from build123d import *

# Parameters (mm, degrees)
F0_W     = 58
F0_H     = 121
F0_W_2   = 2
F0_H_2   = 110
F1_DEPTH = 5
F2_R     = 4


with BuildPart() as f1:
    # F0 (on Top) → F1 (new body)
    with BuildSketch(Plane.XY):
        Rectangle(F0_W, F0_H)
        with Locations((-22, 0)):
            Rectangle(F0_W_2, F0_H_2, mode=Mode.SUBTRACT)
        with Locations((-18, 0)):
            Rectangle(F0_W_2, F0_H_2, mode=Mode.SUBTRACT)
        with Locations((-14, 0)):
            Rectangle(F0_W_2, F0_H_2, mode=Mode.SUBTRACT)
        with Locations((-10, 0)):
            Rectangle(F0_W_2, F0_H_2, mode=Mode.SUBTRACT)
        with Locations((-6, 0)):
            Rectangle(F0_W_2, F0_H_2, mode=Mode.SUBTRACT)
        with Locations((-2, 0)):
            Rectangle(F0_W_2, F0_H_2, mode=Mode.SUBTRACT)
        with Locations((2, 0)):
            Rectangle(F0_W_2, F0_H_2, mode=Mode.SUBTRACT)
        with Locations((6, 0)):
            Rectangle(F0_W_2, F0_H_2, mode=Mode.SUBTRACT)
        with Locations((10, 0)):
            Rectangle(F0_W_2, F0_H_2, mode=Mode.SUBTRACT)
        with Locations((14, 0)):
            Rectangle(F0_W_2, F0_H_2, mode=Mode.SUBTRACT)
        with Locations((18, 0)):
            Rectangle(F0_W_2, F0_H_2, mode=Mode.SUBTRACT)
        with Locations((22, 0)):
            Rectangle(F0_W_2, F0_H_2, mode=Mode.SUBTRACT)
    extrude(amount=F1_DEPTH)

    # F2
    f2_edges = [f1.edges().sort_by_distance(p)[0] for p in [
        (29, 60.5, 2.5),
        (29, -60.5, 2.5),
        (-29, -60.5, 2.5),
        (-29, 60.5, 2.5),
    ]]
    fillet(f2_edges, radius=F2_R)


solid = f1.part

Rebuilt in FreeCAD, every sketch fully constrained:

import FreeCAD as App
import Part
import Sketcher

V = App.Vector


def edges_at(feature, points):
    """Names of the edges that pass closest to the given points."""
    edges = feature.Shape.Edges
    near = lambda p: min(range(len(edges)), key=lambda i: edges[i].distToShape(Part.Vertex(*p))[0])
    return sorted({f"Edge{near(p) + 1}" for p in points})

doc = App.newDocument("Part")
params = doc.addObject("Spreadsheet::Sheet", "Params")
for row, (alias, value) in enumerate([
    ("sketch1_width", "58 mm"),
    ("sketch1_width2", "2 mm"),
    ("sketch1_height", "121 mm"),
    ("sketch1_height2", "110 mm"),
    ("pad1_length", "5 mm"),
    ("fillet_radius", "4 mm"),
], start=1):
    params.set(f"A{row}", alias)
    params.set(f"B{row}", "=" + value)
    params.setAlias(f"B{row}", alias)

body = doc.addObject("PartDesign::Body", "Body")

sketch1 = body.newObject("Sketcher::SketchObject", "Sketch")
sketch1.AttachmentSupport = (doc.getObject("XY_Plane"), [""])
sketch1.MapMode = "FlatFace"
sketch1.addGeometry([
    Part.LineSegment(V(-29, 60.5, 0), V(-29, -60.5, 0)),
    Part.LineSegment(V(-29, -60.5, 0), V(29, -60.5, 0)),
    Part.LineSegment(V(29, -60.5, 0), V(29, 60.5, 0)),
    Part.LineSegment(V(29, 60.5, 0), V(-29, 60.5, 0)),
    Part.LineSegment(V(-21, -55, 0), V(-23, -55, 0)),
    Part.LineSegment(V(-23, -55, 0), V(-23, 55, 0)),
    Part.LineSegment(V(-23, 55, 0), V(-21, 55, 0)),
    Part.LineSegment(V(-21, 55, 0), V(-21, -55, 0)),
    Part.LineSegment(V(-17, -55, 0), V(-19, -55, 0)),
    Part.LineSegment(V(-19, -55, 0), V(-19, 55, 0)),
    Part.LineSegment(V(-19, 55, 0), V(-17, 55, 0)),
    Part.LineSegment(V(-17, 55, 0), V(-17, -55, 0)),
    Part.LineSegment(V(-13, -55, 0), V(-15, -55, 0)),
    Part.LineSegment(V(-15, -55, 0), V(-15, 55, 0)),
    Part.LineSegment(V(-15, 55, 0), V(-13, 55, 0)),
    Part.LineSegment(V(-13, 55, 0), V(-13, -55, 0)),
    Part.LineSegment(V(-9, -55, 0), V(-11, -55, 0)),
    Part.LineSegment(V(-11, -55, 0), V(-11, 55, 0)),
    Part.LineSegment(V(-11, 55, 0), V(-9, 55, 0)),
    Part.LineSegment(V(-9, 55, 0), V(-9, -55, 0)),
    Part.LineSegment(V(-5, -55, 0), V(-7, -55, 0)),
    Part.LineSegment(V(-7, -55, 0), V(-7, 55, 0)),
    Part.LineSegment(V(-7, 55, 0), V(-5, 55, 0)),
    Part.LineSegment(V(-5, 55, 0), V(-5, -55, 0)),
    Part.LineSegment(V(-1, -55, 0), V(-3, -55, 0)),
    Part.LineSegment(V(-3, -55, 0), V(-3, 55, 0)),
    Part.LineSegment(V(-3, 55, 0), V(-1, 55, 0)),
    Part.LineSegment(V(-1, 55, 0), V(-1, -55, 0)),
    Part.LineSegment(V(3, -55, 0), V(1, -55, 0)),
    Part.LineSegment(V(1, -55, 0), V(1, 55, 0)),
    Part.LineSegment(V(1, 55, 0), V(3, 55, 0)),
    Part.LineSegment(V(3, 55, 0), V(3, -55, 0)),
    Part.LineSegment(V(7, -55, 0), V(5, -55, 0)),
    Part.LineSegment(V(5, -55, 0), V(5, 55, 0)),
    Part.LineSegment(V(5, 55, 0), V(7, 55, 0)),
    Part.LineSegment(V(7, 55, 0), V(7, -55, 0)),
    Part.LineSegment(V(11, -55, 0), V(9, -55, 0)),
    Part.LineSegment(V(9, -55, 0), V(9, 55, 0)),
    Part.LineSegment(V(9, 55, 0), V(11, 55, 0)),
    Part.LineSegment(V(11, 55, 0), V(11, -55, 0)),
    Part.LineSegment(V(15, -55, 0), V(13, -55, 0)),
    Part.LineSegment(V(13, -55, 0), V(13, 55, 0)),
    Part.LineSegment(V(13, 55, 0), V(15, 55, 0)),
    Part.LineSegment(V(15, 55, 0), V(15, -55, 0)),
    Part.LineSegment(V(19, -55, 0), V(17, -55, 0)),
    Part.LineSegment(V(17, -55, 0), V(17, 55, 0)),
    Part.LineSegment(V(17, 55, 0), V(19, 55, 0)),
    Part.LineSegment(V(19, 55, 0), V(19, -55, 0)),
    Part.LineSegment(V(23, -55, 0), V(21, -55, 0)),
    Part.LineSegment(V(21, -55, 0), V(21, 55, 0)),
    Part.LineSegment(V(21, 55, 0), V(23, 55, 0)),
    Part.LineSegment(V(23, 55, 0), V(23, -55, 0)),
], False)
sketch1.addConstraint([
    Sketcher.Constraint("Coincident", 0, 2, 1, 1),
    Sketcher.Constraint("Coincident", 1, 2, 2, 1),
    Sketcher.Constraint("Coincident", 2, 2, 3, 1),
    Sketcher.Constraint("Coincident", 3, 2, 0, 1),
    Sketcher.Constraint("Coincident", 4, 2, 5, 1),
    Sketcher.Constraint("Coincident", 5, 2, 6, 1),
    Sketcher.Constraint("Coincident", 6, 2, 7, 1),
    Sketcher.Constraint("Coincident", 7, 2, 4, 1),
    Sketcher.Constraint("Coincident", 8, 2, 9, 1),
    Sketcher.Constraint("Coincident", 9, 2, 10, 1),
    Sketcher.Constraint("Coincident", 10, 2, 11, 1),
    Sketcher.Constraint("Coincident", 11, 2, 8, 1),
    Sketcher.Constraint("Coincident", 12, 2, 13, 1),
    Sketcher.Constraint("Coincident", 13, 2, 14, 1),
    Sketcher.Constraint("Coincident", 14, 2, 15, 1),
    Sketcher.Constraint("Coincident", 15, 2, 12, 1),
    Sketcher.Constraint("Coincident", 16, 2, 17, 1),
    Sketcher.Constraint("Coincident", 17, 2, 18, 1),
    Sketcher.Constraint("Coincident", 18, 2, 19, 1),
    Sketcher.Constraint("Coincident", 19, 2, 16, 1),
    Sketcher.Constraint("Coincident", 20, 2, 21, 1),
    Sketcher.Constraint("Coincident", 21, 2, 22, 1),
    Sketcher.Constraint("Coincident", 22, 2, 23, 1),
    Sketcher.Constraint("Coincident", 23, 2, 20, 1),
    Sketcher.Constraint("Coincident", 24, 2, 25, 1),
    Sketcher.Constraint("Coincident", 25, 2, 26, 1),
    Sketcher.Constraint("Coincident", 26, 2, 27, 1),
    Sketcher.Constraint("Coincident", 27, 2, 24, 1),
    Sketcher.Constraint("Coincident", 28, 2, 29, 1),
    Sketcher.Constraint("Coincident", 29, 2, 30, 1),
    Sketcher.Constraint("Coincident", 30, 2, 31, 1),
    Sketcher.Constraint("Coincident", 31, 2, 28, 1),
    Sketcher.Constraint("Coincident", 32, 2, 33, 1),
    Sketcher.Constraint("Coincident", 33, 2, 34, 1),
    Sketcher.Constraint("Coincident", 34, 2, 35, 1),
    Sketcher.Constraint("Coincident", 35, 2, 32, 1),
    Sketcher.Constraint("Coincident", 36, 2, 37, 1),
    Sketcher.Constraint("Coincident", 37, 2, 38, 1),
    Sketcher.Constraint("Coincident", 38, 2, 39, 1),
    Sketcher.Constraint("Coincident", 39, 2, 36, 1),
    Sketcher.Constraint("Coincident", 40, 2, 41, 1),
    Sketcher.Constraint("Coincident", 41, 2, 42, 1),
    Sketcher.Constraint("Coincident", 42, 2, 43, 1),
    Sketcher.Constraint("Coincident", 43, 2, 40, 1),
    Sketcher.Constraint("Coincident", 44, 2, 45, 1),
    Sketcher.Constraint("Coincident", 45, 2, 46, 1),
    Sketcher.Constraint("Coincident", 46, 2, 47, 1),
    Sketcher.Constraint("Coincident", 47, 2, 44, 1),
    Sketcher.Constraint("Coincident", 48, 2, 49, 1),
    Sketcher.Constraint("Coincident", 49, 2, 50, 1),
    Sketcher.Constraint("Coincident", 50, 2, 51, 1),
    Sketcher.Constraint("Coincident", 51, 2, 48, 1),
    Sketcher.Constraint("Vertical", 0),
    Sketcher.Constraint("Horizontal", 1),
    Sketcher.Constraint("Vertical", 2),
    Sketcher.Constraint("Horizontal", 3),
    Sketcher.Constraint("Horizontal", 4),
    Sketcher.Constraint("Vertical", 5),
    Sketcher.Constraint("Horizontal", 6),
    Sketcher.Constraint("Vertical", 7),
    Sketcher.Constraint("Horizontal", 8),
    Sketcher.Constraint("Vertical", 9),
    Sketcher.Constraint("Horizontal", 10),
    Sketcher.Constraint("Vertical", 11),
    Sketcher.Constraint("Horizontal", 12),
    Sketcher.Constraint("Vertical", 13),
    Sketcher.Constraint("Horizontal", 14),
    Sketcher.Constraint("Vertical", 15),
    Sketcher.Constraint("Horizontal", 16),
    Sketcher.Constraint("Vertical", 17),
    Sketcher.Constraint("Horizontal", 18),
    Sketcher.Constraint("Vertical", 19),
    Sketcher.Constraint("Horizontal", 20),
    Sketcher.Constraint("Vertical", 21),
    Sketcher.Constraint("Horizontal", 22),
    Sketcher.Constraint("Vertical", 23),
    Sketcher.Constraint("Horizontal", 24),
    Sketcher.Constraint("Vertical", 25),
    Sketcher.Constraint("Horizontal", 26),
    Sketcher.Constraint("Vertical", 27),
    Sketcher.Constraint("Horizontal", 28),
    Sketcher.Constraint("Vertical", 29),
    Sketcher.Constraint("Horizontal", 30),
    Sketcher.Constraint("Vertical", 31),
    Sketcher.Constraint("Horizontal", 32),
    Sketcher.Constraint("Vertical", 33),
    Sketcher.Constraint("Horizontal", 34),
    Sketcher.Constraint("Vertical", 35),
    Sketcher.Constraint("Horizontal", 36),
    Sketcher.Constraint("Vertical", 37),
    Sketcher.Constraint("Horizontal", 38),
    Sketcher.Constraint("Vertical", 39),
    Sketcher.Constraint("Horizontal", 40),
    Sketcher.Constraint("Vertical", 41),
    Sketcher.Constraint("Horizontal", 42),
    Sketcher.Constraint("Vertical", 43),
    Sketcher.Constraint("Horizontal", 44),
    Sketcher.Constraint("Vertical", 45),
    Sketcher.Constraint("Horizontal", 46),
    Sketcher.Constraint("Vertical", 47),
    Sketcher.Constraint("Horizontal", 48),
    Sketcher.Constraint("Vertical", 49),
    Sketcher.Constraint("Horizontal", 50),
    Sketcher.Constraint("Vertical", 51),
    Sketcher.Constraint("Symmetric", 0, 2, 2, 2, -1, 1),
    Sketcher.Constraint("Symmetric", 26, 2, 28, 2, -1, 1),
    Sketcher.Constraint("Symmetric", 24, 2, 30, 2, -1, 1),
    Sketcher.Constraint("Symmetric", 22, 2, 32, 2, -1, 1),
    Sketcher.Constraint("Symmetric", 20, 2, 34, 2, -1, 1),
    Sketcher.Constraint("Symmetric", 18, 2, 36, 2, -1, 1),
    Sketcher.Constraint("Symmetric", 16, 2, 38, 2, -1, 1),
    Sketcher.Constraint("Symmetric", 14, 2, 40, 2, -1, 1),
    Sketcher.Constraint("Symmetric", 12, 2, 42, 2, -1, 1),
    Sketcher.Constraint("Symmetric", 10, 2, 44, 2, -1, 1),
    Sketcher.Constraint("Symmetric", 8, 2, 46, 2, -1, 1),
    Sketcher.Constraint("Symmetric", 6, 2, 48, 2, -1, 1),
    Sketcher.Constraint("Symmetric", 4, 2, 50, 2, -1, 1),
    Sketcher.Constraint("Horizontal", 7, 2, 8, 2),
    Sketcher.Constraint("Horizontal", 6, 2, 9, 2),
    Sketcher.Constraint("Horizontal", 11, 2, 12, 2),
    Sketcher.Constraint("Horizontal", 10, 2, 13, 2),
    Sketcher.Constraint("Horizontal", 15, 2, 16, 2),
    Sketcher.Constraint("Horizontal", 14, 2, 17, 2),
    Sketcher.Constraint("Horizontal", 19, 2, 20, 2),
    Sketcher.Constraint("Horizontal", 18, 2, 21, 2),
    Sketcher.Constraint("Horizontal", 23, 2, 24, 2),
    Sketcher.Constraint("Horizontal", 22, 2, 25, 2),
    Sketcher.Constraint("Horizontal", 27, 2, 28, 2),
    Sketcher.Constraint("Equal", 6, 8),
    Sketcher.Constraint("Equal", 10, 12),
    Sketcher.Constraint("Equal", 14, 16),
    Sketcher.Constraint("Equal", 18, 20),
    Sketcher.Constraint("Equal", 22, 24),
    Sketcher.Constraint("DistanceX", 1, 1, 1, 2, 58.0),
    Sketcher.Constraint("DistanceX", 4, 2, 4, 1, 2.0),
    Sketcher.Constraint("DistanceY", 0, 2, 0, 1, 121.0),
    Sketcher.Constraint("DistanceY", 5, 1, 5, 2, 110.0),
    Sketcher.Constraint("DistanceX", 4, 2, -1, 1, 23.0),
    Sketcher.Constraint("DistanceX", 8, 2, -1, 1, 19.0),
    Sketcher.Constraint("DistanceX", 12, 2, -1, 1, 15.0),
    Sketcher.Constraint("DistanceX", 16, 2, -1, 1, 11.0),
    Sketcher.Constraint("DistanceX", 20, 2, -1, 1, 7.0),
    Sketcher.Constraint("DistanceX", 24, 2, -1, 1, 3.0),
])
sketch1.setExpression("Constraints[133]", "Params.sketch1_width")
sketch1.setExpression("Constraints[134]", "Params.sketch1_width2")
sketch1.setExpression("Constraints[135]", "Params.sketch1_height")
sketch1.setExpression("Constraints[136]", "Params.sketch1_height2")
pad1 = body.newObject("PartDesign::Pad", "Pad")
pad1.Profile = sketch1
pad1.setExpression("Length", "Params.pad1_length")
doc.recompute()

fillet = body.newObject("PartDesign::Fillet", "Fillet")
fillet.Base = (pad1, edges_at(pad1, [
    (29, 60.5, 2.5),
    (29, -60.5, 2.5),
    (-29, -60.5, 2.5),
    (-29, 60.5, 2.5),
]))
fillet.setExpression("Radius", "Params.fillet_radius")

doc.recompute()
